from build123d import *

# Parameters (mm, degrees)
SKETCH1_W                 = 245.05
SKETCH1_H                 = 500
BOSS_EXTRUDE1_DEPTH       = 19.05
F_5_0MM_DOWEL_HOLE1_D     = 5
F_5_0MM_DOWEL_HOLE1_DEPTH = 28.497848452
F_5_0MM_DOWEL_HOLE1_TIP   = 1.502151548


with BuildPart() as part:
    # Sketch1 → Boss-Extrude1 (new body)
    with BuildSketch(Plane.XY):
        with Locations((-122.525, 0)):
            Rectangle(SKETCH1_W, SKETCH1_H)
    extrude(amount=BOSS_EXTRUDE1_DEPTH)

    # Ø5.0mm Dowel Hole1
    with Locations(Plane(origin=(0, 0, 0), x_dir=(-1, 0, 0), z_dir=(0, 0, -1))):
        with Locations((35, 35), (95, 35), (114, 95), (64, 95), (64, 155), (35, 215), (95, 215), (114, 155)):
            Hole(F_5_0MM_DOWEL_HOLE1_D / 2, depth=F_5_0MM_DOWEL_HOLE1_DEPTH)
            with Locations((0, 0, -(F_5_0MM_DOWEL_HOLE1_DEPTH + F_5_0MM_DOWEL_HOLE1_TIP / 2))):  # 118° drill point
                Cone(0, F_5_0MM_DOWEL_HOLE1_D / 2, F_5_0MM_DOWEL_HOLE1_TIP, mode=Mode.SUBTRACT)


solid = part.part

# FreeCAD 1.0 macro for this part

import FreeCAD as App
import Part
import Sketcher
from FreeCAD import Vector
Q = App.Units.Quantity

doc = App.newDocument("Part")
params = doc.addObject("Spreadsheet::Sheet", "Params")
for row, (alias, value) in enumerate([
    ("sketch1_height", "500 mm"),
    ("sketch1_width", "245.05 mm"),
    ("pad1_length", "19.05 mm"),
    ("sketch2_diameter", "5 mm"),
    ("hole_diameter", "5 mm"),
    ("hole_depth", "28.497848 mm"),
], start=1):
    params.set(f"A{row}", alias)
    params.set(f"B{row}", "=" + value)
    params.setAlias(f"B{row}", alias)

body = doc.addObject("PartDesign::Body", "Body")

# Sketch on XY plane
sketch1 = body.newObject("Sketcher::SketchObject", "Sketch")
sketch1.AttachmentSupport = (doc.getObject("XY_Plane"), [""])
sketch1.MapMode = "FlatFace"
sketch1.addGeometry(Part.LineSegment(Vector(-245, 250, 0), Vector(-245, -250, 0)), False)
sketch1.addGeometry(Part.LineSegment(Vector(-245, -250, 0), Vector(0, -250, 0)), False)
sketch1.addGeometry(Part.LineSegment(Vector(0, -250, 0), Vector(0, 250, 0)), False)
sketch1.addGeometry(Part.LineSegment(Vector(0, 250, 0), Vector(-245, 250, 0)), False)
sketch1.addConstraint(Sketcher.Constraint("Coincident", 0, 2, 1, 1))
sketch1.addConstraint(Sketcher.Constraint("Coincident", 1, 2, 2, 1))
sketch1.addConstraint(Sketcher.Constraint("Coincident", 2, 2, 3, 1))
sketch1.addConstraint(Sketcher.Constraint("Coincident", 3, 2, 0, 1))
sketch1.addConstraint(Sketcher.Constraint("Vertical", 0))
sketch1.addConstraint(Sketcher.Constraint("Horizontal", 1))
sketch1.addConstraint(Sketcher.Constraint("Vertical", 2))
sketch1.addConstraint(Sketcher.Constraint("Horizontal", 3))
sketch1.addConstraint(Sketcher.Constraint("Symmetric", 1, 2, 2, 2, -1, 1))
sketch1.addConstraint(Sketcher.Constraint("DistanceY", 0, 2, 0, 1, Q("500 mm")))
sketch1.addConstraint(Sketcher.Constraint("DistanceX", 1, 1, 1, 2, Q("245.05 mm")))
sketch1.setExpression("Constraints[9]", "Params.sketch1_height")
sketch1.setExpression("Constraints[10]", "Params.sketch1_width")
pad1 = body.newObject("PartDesign::Pad", "Pad")
pad1.Profile = sketch1
pad1.setExpression("Length", "Params.pad1_length")

# Sketch on XY plane
sketch2 = body.newObject("Sketcher::SketchObject", "Sketch001")
sketch2.AttachmentSupport = (doc.getObject("XY_Plane"), [""])
sketch2.MapMode = "FlatFace"
sketch2.addGeometry(Part.Circle(Vector(-35, 35, 0), Vector(0, 0, 1), 2.5), False)
sketch2.addGeometry(Part.Circle(Vector(-95, 35, 0), Vector(0, 0, 1), 2.5), False)
sketch2.addGeometry(Part.Circle(Vector(-114, 95, 0), Vector(0, 0, 1), 2.5), False)
sketch2.addGeometry(Part.Circle(Vector(-64, 95, 0), Vector(0, 0, 1), 2.5), False)
sketch2.addGeometry(Part.Circle(Vector(-64, 155, 0), Vector(0, 0, 1), 2.5), False)
sketch2.addGeometry(Part.Circle(Vector(-35, 215, 0), Vector(0, 0, 1), 2.5), False)
sketch2.addGeometry(Part.Circle(Vector(-95, 215, 0), Vector(0, 0, 1), 2.5), False)
sketch2.addGeometry(Part.Circle(Vector(-114, 155, 0), Vector(0, 0, 1), 2.5), False)
sketch2.addConstraint(Sketcher.Constraint("Equal", 0, 1))
sketch2.addConstraint(Sketcher.Constraint("Equal", 1, 2))
sketch2.addConstraint(Sketcher.Constraint("Equal", 2, 3))
sketch2.addConstraint(Sketcher.Constraint("Equal", 3, 4))
sketch2.addConstraint(Sketcher.Constraint("Equal", 4, 5))
sketch2.addConstraint(Sketcher.Constraint("Equal", 5, 6))
sketch2.addConstraint(Sketcher.Constraint("Equal", 6, 7))
sketch2.addConstraint(Sketcher.Constraint("Horizontal", 0, 3, 1, 3))
sketch2.addConstraint(Sketcher.Constraint("Horizontal", 2, 3, 3, 3))
sketch2.addConstraint(Sketcher.Constraint("Horizontal", 5, 3, 6, 3))
sketch2.addConstraint(Sketcher.Constraint("Horizontal", 4, 3, 7, 3))
sketch2.addConstraint(Sketcher.Constraint("Vertical", 3, 3, 4, 3))
sketch2.addConstraint(Sketcher.Constraint("Vertical", 0, 3, 5, 3))
sketch2.addConstraint(Sketcher.Constraint("Vertical", 1, 3, 6, 3))
sketch2.addConstraint(Sketcher.Constraint("Vertical", 2, 3, 7, 3))
sketch2.addConstraint(Sketcher.Constraint("Diameter", 0, Q("5 mm")))
sketch2.addConstraint(Sketcher.Constraint("DistanceX", 0, 3, -1, 1, Q("35 mm")))
sketch2.addConstraint(Sketcher.Constraint("DistanceY", -1, 1, 0, 3, Q("35 mm")))
sketch2.addConstraint(Sketcher.Constraint("DistanceX", 1, 3, -1, 1, Q("95 mm")))
sketch2.addConstraint(Sketcher.Constraint("DistanceX", 2, 3, -1, 1, Q("114 mm")))
sketch2.addConstraint(Sketcher.Constraint("DistanceY", -1, 1, 2, 3, Q("95 mm")))
sketch2.addConstraint(Sketcher.Constraint("DistanceX", 3, 3, -1, 1, Q("64 mm")))
sketch2.addConstraint(Sketcher.Constraint("DistanceY", -1, 1, 4, 3, Q("155 mm")))
sketch2.addConstraint(Sketcher.Constraint("DistanceY", -1, 1, 5, 3, Q("215 mm")))
sketch2.setExpression("Constraints[15]", "Params.sketch2_diameter")
doc.recompute()
hole = body.newObject("PartDesign::Hole", "Hole")
hole.Profile = sketch2
hole.ThreadType = "None"
hole.setExpression("Diameter", "Params.hole_diameter")
hole.DepthType = "Dimension"
hole.setExpression("Depth", "Params.hole_depth")
hole.DrillPoint = "Angled"
hole.DrillPointAngle = 118
hole.Reversed = True

doc.recompute()
